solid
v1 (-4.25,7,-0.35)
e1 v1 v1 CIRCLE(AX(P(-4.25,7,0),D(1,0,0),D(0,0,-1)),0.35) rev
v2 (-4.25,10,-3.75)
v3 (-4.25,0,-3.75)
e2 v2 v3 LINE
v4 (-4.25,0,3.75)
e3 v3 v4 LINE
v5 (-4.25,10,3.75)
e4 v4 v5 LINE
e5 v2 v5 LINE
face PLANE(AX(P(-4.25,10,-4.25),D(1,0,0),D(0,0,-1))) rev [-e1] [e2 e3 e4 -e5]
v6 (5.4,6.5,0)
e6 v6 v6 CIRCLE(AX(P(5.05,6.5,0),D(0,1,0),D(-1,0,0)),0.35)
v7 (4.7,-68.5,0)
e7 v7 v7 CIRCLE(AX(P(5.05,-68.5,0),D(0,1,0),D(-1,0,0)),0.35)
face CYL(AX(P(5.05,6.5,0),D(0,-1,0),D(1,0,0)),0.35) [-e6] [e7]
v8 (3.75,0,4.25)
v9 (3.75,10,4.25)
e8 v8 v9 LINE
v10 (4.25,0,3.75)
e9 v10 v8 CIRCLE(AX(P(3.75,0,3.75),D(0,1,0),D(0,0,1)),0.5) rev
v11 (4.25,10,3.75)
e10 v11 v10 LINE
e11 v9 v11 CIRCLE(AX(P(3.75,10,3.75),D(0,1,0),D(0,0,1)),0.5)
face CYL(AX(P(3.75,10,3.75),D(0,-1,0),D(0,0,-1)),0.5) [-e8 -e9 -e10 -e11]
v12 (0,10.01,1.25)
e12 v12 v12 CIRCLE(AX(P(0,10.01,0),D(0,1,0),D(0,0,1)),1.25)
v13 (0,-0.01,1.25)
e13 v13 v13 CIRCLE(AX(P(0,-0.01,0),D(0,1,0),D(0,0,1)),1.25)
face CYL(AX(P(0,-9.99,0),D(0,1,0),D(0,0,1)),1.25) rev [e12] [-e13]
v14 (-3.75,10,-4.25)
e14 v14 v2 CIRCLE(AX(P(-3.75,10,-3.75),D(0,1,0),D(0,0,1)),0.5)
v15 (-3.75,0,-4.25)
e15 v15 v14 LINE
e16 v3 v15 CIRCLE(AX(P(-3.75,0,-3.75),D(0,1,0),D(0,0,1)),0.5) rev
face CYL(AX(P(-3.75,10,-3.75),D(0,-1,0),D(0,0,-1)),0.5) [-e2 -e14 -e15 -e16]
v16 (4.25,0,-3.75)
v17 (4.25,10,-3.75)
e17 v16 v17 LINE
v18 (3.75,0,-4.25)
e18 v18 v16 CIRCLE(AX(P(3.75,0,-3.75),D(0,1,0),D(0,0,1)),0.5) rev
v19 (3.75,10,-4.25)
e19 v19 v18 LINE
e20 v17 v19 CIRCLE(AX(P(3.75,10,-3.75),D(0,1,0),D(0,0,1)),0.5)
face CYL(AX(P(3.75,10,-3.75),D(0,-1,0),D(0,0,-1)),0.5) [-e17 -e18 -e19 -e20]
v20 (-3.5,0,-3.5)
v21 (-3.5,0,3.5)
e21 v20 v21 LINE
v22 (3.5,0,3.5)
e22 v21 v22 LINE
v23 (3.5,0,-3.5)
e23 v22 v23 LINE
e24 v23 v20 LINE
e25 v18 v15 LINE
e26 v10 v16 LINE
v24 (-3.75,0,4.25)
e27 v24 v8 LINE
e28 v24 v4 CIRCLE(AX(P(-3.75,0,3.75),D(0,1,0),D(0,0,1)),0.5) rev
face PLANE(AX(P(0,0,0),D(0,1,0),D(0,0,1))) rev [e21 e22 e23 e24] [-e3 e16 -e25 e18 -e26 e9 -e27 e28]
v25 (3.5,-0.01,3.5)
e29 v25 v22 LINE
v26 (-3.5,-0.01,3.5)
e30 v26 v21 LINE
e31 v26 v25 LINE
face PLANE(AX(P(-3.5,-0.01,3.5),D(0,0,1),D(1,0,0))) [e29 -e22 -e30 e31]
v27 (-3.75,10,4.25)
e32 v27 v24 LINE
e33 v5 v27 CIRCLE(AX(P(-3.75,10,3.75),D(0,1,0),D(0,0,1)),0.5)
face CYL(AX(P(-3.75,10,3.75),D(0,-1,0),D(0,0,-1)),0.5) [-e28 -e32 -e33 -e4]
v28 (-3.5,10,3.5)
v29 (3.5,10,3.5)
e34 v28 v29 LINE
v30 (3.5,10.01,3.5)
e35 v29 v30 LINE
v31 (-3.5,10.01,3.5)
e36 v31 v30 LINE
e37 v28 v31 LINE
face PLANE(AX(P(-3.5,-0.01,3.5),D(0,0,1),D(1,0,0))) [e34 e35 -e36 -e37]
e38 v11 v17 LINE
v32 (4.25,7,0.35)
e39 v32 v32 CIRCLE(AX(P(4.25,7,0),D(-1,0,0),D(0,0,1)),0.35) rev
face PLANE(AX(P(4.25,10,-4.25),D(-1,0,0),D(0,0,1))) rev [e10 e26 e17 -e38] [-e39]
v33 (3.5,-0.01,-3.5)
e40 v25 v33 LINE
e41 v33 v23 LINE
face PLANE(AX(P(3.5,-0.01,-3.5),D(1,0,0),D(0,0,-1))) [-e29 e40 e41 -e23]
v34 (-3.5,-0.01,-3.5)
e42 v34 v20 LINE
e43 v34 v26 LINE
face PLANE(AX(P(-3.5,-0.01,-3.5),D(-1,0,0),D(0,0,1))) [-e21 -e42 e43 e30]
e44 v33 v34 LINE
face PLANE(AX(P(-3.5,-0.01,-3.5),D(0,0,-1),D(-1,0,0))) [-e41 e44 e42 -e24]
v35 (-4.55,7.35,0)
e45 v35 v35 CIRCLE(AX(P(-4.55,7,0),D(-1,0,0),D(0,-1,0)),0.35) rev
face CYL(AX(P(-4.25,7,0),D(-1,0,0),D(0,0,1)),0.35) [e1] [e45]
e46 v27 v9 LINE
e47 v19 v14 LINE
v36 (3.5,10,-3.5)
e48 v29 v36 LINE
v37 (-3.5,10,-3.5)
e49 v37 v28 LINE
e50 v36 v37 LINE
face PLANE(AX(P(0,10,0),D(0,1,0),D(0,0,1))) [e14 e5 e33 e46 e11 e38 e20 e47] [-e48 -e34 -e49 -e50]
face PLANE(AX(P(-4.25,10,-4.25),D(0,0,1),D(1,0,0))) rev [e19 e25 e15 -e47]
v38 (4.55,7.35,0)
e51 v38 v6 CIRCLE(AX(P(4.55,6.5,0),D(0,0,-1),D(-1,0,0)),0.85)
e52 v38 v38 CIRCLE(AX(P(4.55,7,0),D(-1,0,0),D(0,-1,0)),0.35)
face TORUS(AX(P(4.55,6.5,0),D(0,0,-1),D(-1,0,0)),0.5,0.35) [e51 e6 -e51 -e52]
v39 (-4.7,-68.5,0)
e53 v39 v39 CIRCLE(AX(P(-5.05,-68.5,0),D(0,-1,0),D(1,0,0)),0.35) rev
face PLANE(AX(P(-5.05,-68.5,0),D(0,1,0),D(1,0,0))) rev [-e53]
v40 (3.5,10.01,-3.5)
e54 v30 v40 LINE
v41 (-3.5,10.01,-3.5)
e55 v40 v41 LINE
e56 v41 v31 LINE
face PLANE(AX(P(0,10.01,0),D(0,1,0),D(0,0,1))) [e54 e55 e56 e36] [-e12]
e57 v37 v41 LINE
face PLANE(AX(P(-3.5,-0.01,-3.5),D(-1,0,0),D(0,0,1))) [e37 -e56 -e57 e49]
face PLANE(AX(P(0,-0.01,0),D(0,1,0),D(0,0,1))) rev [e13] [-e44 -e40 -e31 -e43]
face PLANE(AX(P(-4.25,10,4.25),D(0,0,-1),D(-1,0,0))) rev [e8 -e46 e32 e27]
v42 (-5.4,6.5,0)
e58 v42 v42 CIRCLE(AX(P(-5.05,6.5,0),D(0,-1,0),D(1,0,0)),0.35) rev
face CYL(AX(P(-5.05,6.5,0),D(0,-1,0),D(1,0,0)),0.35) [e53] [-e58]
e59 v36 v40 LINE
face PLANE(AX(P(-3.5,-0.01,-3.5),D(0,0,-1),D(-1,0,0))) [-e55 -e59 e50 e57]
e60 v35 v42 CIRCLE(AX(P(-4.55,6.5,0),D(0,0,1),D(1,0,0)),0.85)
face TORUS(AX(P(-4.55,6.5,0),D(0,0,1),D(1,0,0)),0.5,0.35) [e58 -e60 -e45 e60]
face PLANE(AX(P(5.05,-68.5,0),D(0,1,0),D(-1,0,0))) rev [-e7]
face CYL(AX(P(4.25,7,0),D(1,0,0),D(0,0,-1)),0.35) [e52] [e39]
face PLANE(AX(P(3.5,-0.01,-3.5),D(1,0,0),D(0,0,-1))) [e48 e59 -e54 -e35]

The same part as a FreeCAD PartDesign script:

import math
import FreeCAD as App
import Part
import Sketcher

V = App.Vector


def edges_at(feature, points):
    """Names of the edges that pass closest to the given points."""
    edges = feature.Shape.Edges
    near = lambda p: min(range(len(edges)), key=lambda i: edges[i].distToShape(Part.Vertex(*p))[0])
    return sorted({f"Edge{near(p) + 1}" for p in points})

doc = App.newDocument("Part")
body = doc.addObject("PartDesign::Body", "Body")

# Sketch on XZ plane
sketch1 = body.newObject("Sketcher::SketchObject", "Sketch")
sketch1.AttachmentSupport = (doc.getObject("XZ_Plane"), [""])
sketch1.MapMode = "FlatFace"
sketch1.addGeometry(Part.LineSegment(V(-4, -4, 0), V(-4, 4, 0)), False)
sketch1.addGeometry(Part.LineSegment(V(-4, 4, 0), V(4, 4, 0)), False)
sketch1.addGeometry(Part.LineSegment(V(4, 4, 0), V(4, -4, 0)), False)
sketch1.addGeometry(Part.LineSegment(V(4, -4, 0), V(-4, -4, 0)), False)
sketch1.addConstraint(Sketcher.Constraint("Coincident", 0, 2, 1, 1))
sketch1.addConstraint(Sketcher.Constraint("Coincident", 1, 2, 2, 1))
sketch1.addConstraint(Sketcher.Constraint("Coincident", 2, 2, 3, 1))
sketch1.addConstraint(Sketcher.Constraint("Coincident", 3, 2, 0, 1))
sketch1.addConstraint(Sketcher.Constraint("Vertical", 0))
sketch1.addConstraint(Sketcher.Constraint("Horizontal", 1))
sketch1.addConstraint(Sketcher.Constraint("Vertical", 2))
sketch1.addConstraint(Sketcher.Constraint("Horizontal", 3))
sketch1.addConstraint(Sketcher.Constraint("Symmetric", 0, 2, 2, 2, -1, 1))
sketch1.addConstraint(Sketcher.Constraint("Equal", 3, 0))
sketch1.addConstraint(Sketcher.Constraint("DistanceX", 1, 1, 1, 2, 8.5))
pad1 = body.newObject("PartDesign::Pad", "Pad")
pad1.Profile = sketch1
pad1.Length = 10
pad1.Reversed = True

# Sketch on XZ plane
sketch2 = body.newObject("Sketcher::SketchObject", "Sketch001")
sketch2.AttachmentSupport = (doc.getObject("XZ_Plane"), [""])
sketch2.MapMode = "FlatFace"
sketch2.addGeometry(Part.LineSegment(V(-4, -4, 0), V(-4, 4, 0)), False)
sketch2.addGeometry(Part.LineSegment(V(-4, 4, 0), V(4, 4, 0)), False)
sketch2.addGeometry(Part.LineSegment(V(4, 4, 0), V(4, -4, 0)), False)
sketch2.addGeometry(Part.LineSegment(V(4, -4, 0), V(-4, -4, 0)), False)
sketch2.addConstraint(Sketcher.Constraint("Coincident", 0, 2, 1, 1))
sketch2.addConstraint(Sketcher.Constraint("Coincident", 1, 2, 2, 1))
sketch2.addConstraint(Sketcher.Constraint("Coincident", 2, 2, 3, 1))
sketch2.addConstraint(Sketcher.Constraint("Coincident", 3, 2, 0, 1))
sketch2.addConstraint(Sketcher.Constraint("Vertical", 0))
sketch2.addConstraint(Sketcher.Constraint("Horizontal", 1))
sketch2.addConstraint(Sketcher.Constraint("Vertical", 2))
sketch2.addConstraint(Sketcher.Constraint("Horizontal", 3))
sketch2.addConstraint(Sketcher.Constraint("Symmetric", 0, 2, 2, 2, -1, 1))
sketch2.addConstraint(Sketcher.Constraint("Equal", 3, 0))
sketch2.addConstraint(Sketcher.Constraint("DistanceX", 1, 1, 1, 2, 7.0))
pad2 = body.newObject("PartDesign::Pad", "Pad001")
pad2.Profile = sketch2
pad2.Type = "TwoLengths"
pad2.Length = 10.01
pad2.Length2 = 0.01
pad2.Reversed = True
doc.recompute()

fillet = body.newObject("PartDesign::Fillet", "Fillet")
fillet.Base = (pad2, edges_at(pad2, [
    (4.25, 5, 4.25),
    (-4.25, 5, 4.25),
    (-4.25, 5, -4.25),
    (4.25, 5, -4.25),
]))
fillet.Radius = 0.5

# Sketch on XZ plane
sketch3 = body.newObject("Sketcher::SketchObject", "Sketch002")
sketch3.AttachmentSupport = (doc.getObject("XZ_Plane"), [""])
sketch3.MapMode = "FlatFace"
sketch3.AttachmentOffset = App.Placement(V(0, 0, -10.01), App.Rotation())
sketch3.addGeometry(Part.Circle(V(0, 0, 0), V(0, 0, 1), 1.2), False)
sketch3.addConstraint(Sketcher.Constraint("Coincident", 0, 3, -1, 1))
sketch3.addConstraint(Sketcher.Constraint("Diameter", 0, 2.5))
pocket1 = body.newObject("PartDesign::Pocket", "Pocket")
pocket1.Profile = sketch3
pocket1.Length = 20
pocket1.Reversed = True

# Sketch on YZ plane
sketch4 = body.newObject("Sketcher::SketchObject", "Sketch003")
sketch4.AttachmentSupport = (doc.getObject("YZ_Plane"), [""])
sketch4.MapMode = "FlatFace"
sketch4.AttachmentOffset = App.Placement(V(0, 0, 4.25), App.Rotation())
sketch4.addGeometry(Part.Circle(V(7, 0, 0), V(0, 0, 1), 0.35), False)
sketch4.addConstraint(Sketcher.Constraint("PointOnObject", 0, 3, -1))
sketch4.addConstraint(Sketcher.Constraint("Diameter", 0, 0.7))
sketch4.addConstraint(Sketcher.Constraint("DistanceX", -1, 1, 0, 3, 7.0))

# Sketch on XY plane
sketch5 = body.newObject("Sketcher::SketchObject", "Sketch004")
sketch5.AttachmentSupport = (doc.getObject("XY_Plane"), [""])
sketch5.MapMode = "FlatFace"
sketch5.addGeometry(Part.LineSegment(V(4.25, 7, 0), V(4.55, 7, 0)), False)
sketch5.addGeometry(Part.ArcOfCircle(Part.Circle(V(4.55, 6.5, 0), V(0, 0, 1), 0.5), math.radians(0), math.radians(90)), False)
sketch5.addGeometry(Part.LineSegment(V(5.05, 6.5, 0), V(5.05, -68.5, 0)), False)
sketch5.addConstraint(Sketcher.Constraint("Tangent", 0, 2, 1, 2))
sketch5.addConstraint(Sketcher.Constraint("Tangent", 1, 1, 2, 1))
sketch5.addConstraint(Sketcher.Constraint("Horizontal", 0))
sketch5.addConstraint(Sketcher.Constraint("Vertical", 2))
sketch5.addConstraint(Sketcher.Constraint("Radius", 1, 0.5))
sketch5.addConstraint(Sketcher.Constraint("DistanceY", 2, 2, 2, 1, 75.0))
sketch5.addConstraint(Sketcher.Constraint("DistanceX", 0, 1, 0, 2, 0.3))
sketch5.addConstraint(Sketcher.Constraint("DistanceY", -1, 1, 0, 1, 7.0))
sketch5.addConstraint(Sketcher.Constraint("DistanceX", -1, 1, 1, 3, 4.55))
doc.recompute()

additivepipe = body.newObject("PartDesign::AdditivePipe", "AdditivePipe")
additivepipe.Profile = sketch4
additivepipe.Spine = (sketch5, ["Edge1", "Edge2", "Edge3"])
doc.recompute()

mirrored = body.newObject("PartDesign::Mirrored", "Mirrored")
mirrored.Originals = [additivepipe]
mirrored.MirrorPlane = (doc.getObject("YZ_Plane"), [""])
body.Tip = mirrored

doc.recompute()
